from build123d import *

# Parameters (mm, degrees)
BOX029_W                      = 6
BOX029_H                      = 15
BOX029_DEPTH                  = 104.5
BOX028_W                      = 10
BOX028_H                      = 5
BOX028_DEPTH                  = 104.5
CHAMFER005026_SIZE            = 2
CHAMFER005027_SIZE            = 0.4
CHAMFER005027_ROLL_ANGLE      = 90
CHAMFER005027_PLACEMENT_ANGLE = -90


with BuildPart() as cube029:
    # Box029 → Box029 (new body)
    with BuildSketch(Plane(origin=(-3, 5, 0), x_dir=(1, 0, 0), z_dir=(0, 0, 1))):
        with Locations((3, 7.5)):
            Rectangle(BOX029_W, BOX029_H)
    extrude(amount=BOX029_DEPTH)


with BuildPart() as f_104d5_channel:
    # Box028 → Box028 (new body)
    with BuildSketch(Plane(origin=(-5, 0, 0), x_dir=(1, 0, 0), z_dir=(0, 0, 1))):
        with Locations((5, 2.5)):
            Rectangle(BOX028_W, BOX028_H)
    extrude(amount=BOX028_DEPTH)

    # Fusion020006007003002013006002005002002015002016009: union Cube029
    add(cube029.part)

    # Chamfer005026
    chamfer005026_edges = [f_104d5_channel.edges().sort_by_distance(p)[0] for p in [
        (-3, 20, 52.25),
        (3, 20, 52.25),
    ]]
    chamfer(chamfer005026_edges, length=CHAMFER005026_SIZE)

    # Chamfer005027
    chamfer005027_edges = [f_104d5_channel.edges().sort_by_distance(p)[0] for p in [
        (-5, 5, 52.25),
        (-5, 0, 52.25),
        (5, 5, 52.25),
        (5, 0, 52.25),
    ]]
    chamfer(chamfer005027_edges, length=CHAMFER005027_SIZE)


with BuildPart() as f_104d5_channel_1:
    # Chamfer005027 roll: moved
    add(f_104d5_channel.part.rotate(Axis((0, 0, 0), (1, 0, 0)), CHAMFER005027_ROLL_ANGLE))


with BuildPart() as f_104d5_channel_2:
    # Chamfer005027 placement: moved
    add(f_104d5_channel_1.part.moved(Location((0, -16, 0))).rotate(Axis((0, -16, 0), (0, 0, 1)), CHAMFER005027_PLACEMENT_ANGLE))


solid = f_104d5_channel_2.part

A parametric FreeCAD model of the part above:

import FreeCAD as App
import Part
import Sketcher


def edges_at(feature, points):
    """Names of the edges that pass closest to the given points."""
    edges = feature.Shape.Edges
    near = lambda p: min(range(len(edges)), key=lambda i: edges[i].distToShape(Part.Vertex(*p))[0])
    return sorted({f"Edge{near(p) + 1}" for p in points})


def add_polygon(sketch, points):
    """Adds a closed chain of lines whose ends are joined by coincident constraints."""
    first, n = sketch.GeometryCount, len(points)
    for a, b in zip(points, points[1:] + points[:1]):
        sketch.addGeometry(Part.LineSegment(App.Vector(*a, 0), App.Vector(*b, 0)), False)
    for i in range(n):
        sketch.addConstraint(Sketcher.Constraint("Coincident", first + i, 2, first + (i + 1) % n, 1))

doc = App.newDocument("Part")
body = doc.addObject("PartDesign::Body", "Body")

# Sketch on XY plane
sketch1 = body.newObject("Sketcher::SketchObject", "Sketch")
sketch1.AttachmentSupport = (doc.getObject("XY_Plane"), [""])
sketch1.MapMode = "FlatFace"
add_polygon(sketch1, [(-3, 20), (-3, 5), (3, 5), (3, 20)])  # lines 0-3
sketch1.addConstraint([
    Sketcher.Constraint("Vertical", 0),
    Sketcher.Constraint("Horizontal", 1),
    Sketcher.Constraint("Vertical", 2),
    Sketcher.Constraint("Horizontal", 3),
    Sketcher.Constraint("DistanceX", 1, 1, 1, 2, 6.0),
    Sketcher.Constraint("DistanceY", 0, 2, 0, 1, 15.0),
    Sketcher.Constraint("DistanceX", 0, 2, -1, 1, 3.0),
    Sketcher.Constraint("DistanceY", -1, 1, 0, 2, 5.0),
])
pad1 = body.newObject("PartDesign::Pad", "Pad")
pad1.Profile = sketch1
pad1.Length = 104.5
body2 = doc.addObject("PartDesign::Body", "Body001")

# Sketch on XY plane
sketch2 = body2.newObject("Sketcher::SketchObject", "Sketch001")
sketch2.AttachmentSupport = (doc.getObject("XY_Plane001"), [""])
sketch2.MapMode = "FlatFace"
add_polygon(sketch2, [(-5, 5), (-5, 0), (5, 0), (5, 5)])  # lines 0-3
sketch2.addConstraint([
    Sketcher.Constraint("Vertical", 0),
    Sketcher.Constraint("Horizontal", 1),
    Sketcher.Constraint("Vertical", 2),
    Sketcher.Constraint("Horizontal", 3),
    Sketcher.Constraint("Symmetric", 0, 2, 1, 2, -1, 1),
    Sketcher.Constraint("DistanceX", 1, 1, 1, 2, 10.0),
    Sketcher.Constraint("DistanceY", 0, 2, 0, 1, 5.0),
])
pad2 = body2.newObject("PartDesign::Pad", "Pad001")
pad2.Profile = sketch2
pad2.Length = 104.5
doc.recompute()

boolean = body2.newObject("PartDesign::Boolean", "Boolean")
boolean.Type = "Fuse"
boolean.addObjects([body])
doc.recompute()

chamfer = body2.newObject("PartDesign::Chamfer", "Chamfer")
chamfer.Base = (boolean, edges_at(boolean, [(-3, 20, 52.25), (3, 20, 52.25)]))
chamfer.Size = 2
doc.recompute()

chamfer2 = body2.newObject("PartDesign::Chamfer", "Chamfer001")
chamfer2.Base = (chamfer, edges_at(chamfer, [
    (-5, 5, 52.25),
    (-5, 0, 52.25),
    (5, 5, 52.25),
    (5, 0, 52.25),
]))
chamfer2.Size = 0.4
body3 = doc.addObject("PartDesign::Body", "Body002")
doc.recompute()

body2.Placement = App.Placement(App.Vector(0, 0, 0), App.Rotation(App.Vector(1, 0, 0), 90))
boolean2 = body3.newObject("PartDesign::Boolean", "Boolean001")
boolean2.Type = "Fuse"
boolean2.addObjects([body2])
body4 = doc.addObject("PartDesign::Body", "Body003")
doc.recompute()

body3.Placement = App.Placement(App.Vector(0, -16, 0), App.Rotation(App.Vector(0, 0, 1), 270))
boolean3 = body4.newObject("PartDesign::Boolean", "Boolean002")
boolean3.Type = "Fuse"
boolean3.addObjects([body3])

doc.recompute()
